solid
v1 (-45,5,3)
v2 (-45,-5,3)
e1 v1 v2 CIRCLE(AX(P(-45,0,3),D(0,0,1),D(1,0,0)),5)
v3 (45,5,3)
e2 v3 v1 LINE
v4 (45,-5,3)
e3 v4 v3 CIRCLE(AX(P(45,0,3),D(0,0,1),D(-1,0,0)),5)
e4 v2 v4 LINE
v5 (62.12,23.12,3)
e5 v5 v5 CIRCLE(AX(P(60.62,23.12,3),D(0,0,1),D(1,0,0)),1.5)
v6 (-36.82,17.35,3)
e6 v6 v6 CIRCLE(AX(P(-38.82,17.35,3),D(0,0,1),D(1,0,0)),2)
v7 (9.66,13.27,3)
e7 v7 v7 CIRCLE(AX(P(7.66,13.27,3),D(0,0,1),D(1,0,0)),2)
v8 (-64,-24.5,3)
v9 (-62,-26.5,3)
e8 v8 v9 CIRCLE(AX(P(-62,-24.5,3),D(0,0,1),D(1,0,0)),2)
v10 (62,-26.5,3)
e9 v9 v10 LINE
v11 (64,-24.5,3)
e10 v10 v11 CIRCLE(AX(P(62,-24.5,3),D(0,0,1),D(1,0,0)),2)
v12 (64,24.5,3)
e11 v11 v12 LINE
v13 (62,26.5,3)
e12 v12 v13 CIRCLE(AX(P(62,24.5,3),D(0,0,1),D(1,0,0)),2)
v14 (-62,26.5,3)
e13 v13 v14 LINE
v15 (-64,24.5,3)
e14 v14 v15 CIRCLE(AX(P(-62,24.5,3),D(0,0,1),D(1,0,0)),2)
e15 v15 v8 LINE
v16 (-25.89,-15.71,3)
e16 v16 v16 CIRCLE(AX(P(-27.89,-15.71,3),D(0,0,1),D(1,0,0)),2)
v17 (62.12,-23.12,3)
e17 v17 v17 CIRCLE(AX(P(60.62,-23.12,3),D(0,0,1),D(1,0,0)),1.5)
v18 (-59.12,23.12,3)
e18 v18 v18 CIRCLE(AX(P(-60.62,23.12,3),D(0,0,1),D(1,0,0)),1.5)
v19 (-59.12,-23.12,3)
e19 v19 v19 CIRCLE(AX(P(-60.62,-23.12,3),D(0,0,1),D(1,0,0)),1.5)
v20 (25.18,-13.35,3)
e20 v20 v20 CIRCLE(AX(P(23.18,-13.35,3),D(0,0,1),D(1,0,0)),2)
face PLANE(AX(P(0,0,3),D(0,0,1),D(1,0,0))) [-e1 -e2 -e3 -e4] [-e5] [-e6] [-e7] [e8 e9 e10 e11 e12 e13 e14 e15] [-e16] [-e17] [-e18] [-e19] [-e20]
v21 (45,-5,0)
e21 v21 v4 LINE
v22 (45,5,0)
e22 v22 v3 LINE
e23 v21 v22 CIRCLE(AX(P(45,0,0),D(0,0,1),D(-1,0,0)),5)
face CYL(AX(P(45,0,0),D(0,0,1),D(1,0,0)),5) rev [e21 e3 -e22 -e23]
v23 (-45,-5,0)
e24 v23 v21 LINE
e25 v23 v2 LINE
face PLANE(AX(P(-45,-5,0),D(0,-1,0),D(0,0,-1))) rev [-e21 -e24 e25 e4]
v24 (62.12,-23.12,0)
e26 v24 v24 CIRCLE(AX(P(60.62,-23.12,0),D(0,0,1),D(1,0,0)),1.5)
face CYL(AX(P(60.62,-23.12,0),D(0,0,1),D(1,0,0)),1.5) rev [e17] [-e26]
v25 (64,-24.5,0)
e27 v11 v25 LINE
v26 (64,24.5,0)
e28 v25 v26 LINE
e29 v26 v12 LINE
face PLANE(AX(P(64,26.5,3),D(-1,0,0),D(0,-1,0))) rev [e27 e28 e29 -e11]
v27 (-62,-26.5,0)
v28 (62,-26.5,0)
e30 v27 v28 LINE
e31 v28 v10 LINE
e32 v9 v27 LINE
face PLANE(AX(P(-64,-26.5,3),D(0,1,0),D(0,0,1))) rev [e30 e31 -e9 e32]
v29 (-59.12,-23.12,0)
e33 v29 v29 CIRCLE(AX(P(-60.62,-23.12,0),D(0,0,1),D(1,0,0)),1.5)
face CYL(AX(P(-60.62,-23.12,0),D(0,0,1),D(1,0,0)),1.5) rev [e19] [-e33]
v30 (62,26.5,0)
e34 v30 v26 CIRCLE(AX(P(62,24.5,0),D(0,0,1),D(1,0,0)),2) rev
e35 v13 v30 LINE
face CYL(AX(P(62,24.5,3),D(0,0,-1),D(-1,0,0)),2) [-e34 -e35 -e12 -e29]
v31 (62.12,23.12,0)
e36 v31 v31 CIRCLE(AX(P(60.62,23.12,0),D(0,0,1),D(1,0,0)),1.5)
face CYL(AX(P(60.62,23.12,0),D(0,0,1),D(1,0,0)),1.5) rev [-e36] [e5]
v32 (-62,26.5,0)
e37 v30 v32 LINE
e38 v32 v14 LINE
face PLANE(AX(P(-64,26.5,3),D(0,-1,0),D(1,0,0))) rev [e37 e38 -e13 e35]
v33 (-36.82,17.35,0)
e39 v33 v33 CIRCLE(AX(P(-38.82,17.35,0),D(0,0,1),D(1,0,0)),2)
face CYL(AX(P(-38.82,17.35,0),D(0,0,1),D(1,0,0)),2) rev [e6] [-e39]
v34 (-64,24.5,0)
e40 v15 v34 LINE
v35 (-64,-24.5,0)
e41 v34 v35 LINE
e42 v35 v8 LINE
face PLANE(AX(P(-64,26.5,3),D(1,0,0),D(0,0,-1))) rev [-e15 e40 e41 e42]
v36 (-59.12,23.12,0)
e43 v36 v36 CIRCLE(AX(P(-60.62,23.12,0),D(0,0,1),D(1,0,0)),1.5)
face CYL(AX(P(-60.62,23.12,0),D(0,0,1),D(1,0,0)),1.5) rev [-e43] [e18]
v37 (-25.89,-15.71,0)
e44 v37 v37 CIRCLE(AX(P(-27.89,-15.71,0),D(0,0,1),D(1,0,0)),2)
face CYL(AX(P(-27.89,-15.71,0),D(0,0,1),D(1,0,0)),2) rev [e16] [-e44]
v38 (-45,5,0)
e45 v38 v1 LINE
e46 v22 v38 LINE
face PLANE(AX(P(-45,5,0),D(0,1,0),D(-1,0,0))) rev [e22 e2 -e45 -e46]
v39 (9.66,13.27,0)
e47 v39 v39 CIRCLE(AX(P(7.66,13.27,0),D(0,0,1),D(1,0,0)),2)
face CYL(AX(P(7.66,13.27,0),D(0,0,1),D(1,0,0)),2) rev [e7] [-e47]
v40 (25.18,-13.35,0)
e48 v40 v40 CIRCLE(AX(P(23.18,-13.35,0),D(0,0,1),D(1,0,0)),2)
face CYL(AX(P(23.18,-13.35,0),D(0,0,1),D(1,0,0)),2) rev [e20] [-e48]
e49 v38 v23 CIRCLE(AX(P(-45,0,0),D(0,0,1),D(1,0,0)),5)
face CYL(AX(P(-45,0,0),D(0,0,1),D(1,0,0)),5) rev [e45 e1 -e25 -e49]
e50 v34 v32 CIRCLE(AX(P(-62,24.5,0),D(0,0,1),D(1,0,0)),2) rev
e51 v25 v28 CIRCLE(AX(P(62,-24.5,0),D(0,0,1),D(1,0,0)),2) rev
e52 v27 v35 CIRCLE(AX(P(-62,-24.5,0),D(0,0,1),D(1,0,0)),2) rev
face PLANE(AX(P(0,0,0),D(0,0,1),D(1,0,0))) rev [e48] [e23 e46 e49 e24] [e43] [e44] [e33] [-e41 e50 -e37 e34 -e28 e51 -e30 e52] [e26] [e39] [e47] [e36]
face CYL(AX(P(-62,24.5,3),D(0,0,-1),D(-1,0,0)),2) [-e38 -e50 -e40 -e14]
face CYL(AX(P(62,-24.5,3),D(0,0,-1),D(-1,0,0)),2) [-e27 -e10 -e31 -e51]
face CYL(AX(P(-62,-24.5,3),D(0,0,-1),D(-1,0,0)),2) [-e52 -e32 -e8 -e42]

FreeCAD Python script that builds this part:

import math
import FreeCAD as App
import Part
import Sketcher

V = App.Vector


def edges_at(feature, points):
    """Names of the edges that pass closest to the given points."""
    edges = feature.Shape.Edges
    near = lambda p: min(range(len(edges)), key=lambda i: edges[i].distToShape(Part.Vertex(*p))[0])
    return sorted({f"Edge{near(p) + 1}" for p in points})


def add_polygon(sketch, points):
    """Adds a closed chain of lines whose ends are joined by coincident constraints."""
    first, n = sketch.GeometryCount, len(points)
    for a, b in zip(points, points[1:] + points[:1]):
        sketch.addGeometry(Part.LineSegment(App.Vector(*a, 0), App.Vector(*b, 0)), False)
    for i in range(n):
        sketch.addConstraint(Sketcher.Constraint("Coincident", first + i, 2, first + (i + 1) % n, 1))

doc = App.newDocument("Part")
params = doc.addObject("Spreadsheet::Sheet", "Params")
for row, (alias, value) in enumerate([
    ("sketch1_width", "128 mm"),
    ("sketch1_height", "53 mm"),
    ("pad1_length", "3 mm"),
    ("sketch2_diameter", "4 mm"),
    ("pocket1_length", "3 mm"),
    ("sketch3_radius", "5 mm"),
    ("sketch3_width", "90.000001 mm"),
    ("pocket2_length", "3 mm"),
    ("sketch4_diameter", "3 mm"),
    ("pocket3_length", "3 mm"),
    ("fillet_radius", "2 mm"),
], start=1):
    params.set(f"A{row}", alias)
    params.set(f"B{row}", "=" + value)
    params.setAlias(f"B{row}", alias)

body = doc.addObject("PartDesign::Body", "Body")

# Sketch on XY plane
sketch1 = body.newObject("Sketcher::SketchObject", "Sketch")
sketch1.AttachmentSupport = (doc.getObject("XY_Plane"), [""])
sketch1.MapMode = "FlatFace"
add_polygon(sketch1, [(-64, 26), (-64, -26), (64, -26), (64, 26)])  # lines 0-3
sketch1.addConstraint(Sketcher.Constraint("Vertical", 0))
sketch1.addConstraint(Sketcher.Constraint("Horizontal", 1))
sketch1.addConstraint(Sketcher.Constraint("Vertical", 2))
sketch1.addConstraint(Sketcher.Constraint("Horizontal", 3))
sketch1.addConstraint(Sketcher.Constraint("Symmetric", 0, 2, 2, 2, -1, 1))
sketch1.addConstraint(Sketcher.Constraint("DistanceX", 1, 1, 1, 2, 128.0))
sketch1.addConstraint(Sketcher.Constraint("DistanceY", 0, 2, 0, 1, 53.0))
sketch1.setExpression("Constraints[9]", "Params.sketch1_width")
sketch1.setExpression("Constraints[10]", "Params.sketch1_height")
pad1 = body.newObject("PartDesign::Pad", "Pad")
pad1.Profile = sketch1
pad1.setExpression("Length", "Params.pad1_length")

# Sketch on XY plane
sketch2 = body.newObject("Sketcher::SketchObject", "Sketch001")
sketch2.AttachmentSupport = (doc.getObject("XY_Plane"), [""])
sketch2.MapMode = "FlatFace"
sketch2.AttachmentOffset = App.Placement(V(0, 0, 3), App.Rotation())
sketch2.addGeometry(Part.Circle(V(-38.8, 17.4, 0), V(0, 0, 1), 2), False)
sketch2.addGeometry(Part.Circle(V(7.7, 13.3, 0), V(0, 0, 1), 2), False)
sketch2.addGeometry(Part.Circle(V(-27.9, -15.7, 0), V(0, 0, 1), 2), False)
sketch2.addGeometry(Part.Circle(V(23.2, -13.3, 0), V(0, 0, 1), 2), False)
sketch2.addConstraint(Sketcher.Constraint("Equal", 0, 1))
sketch2.addConstraint(Sketcher.Constraint("Equal", 1, 2))
sketch2.addConstraint(Sketcher.Constraint("Equal", 2, 3))
sketch2.addConstraint(Sketcher.Constraint("Diameter", 0, 4.0))
sketch2.addConstraint(Sketcher.Constraint("DistanceX", 0, 3, 3, 3, 62.0))
sketch2.addConstraint(Sketcher.Constraint("DistanceY", 3, 3, 0, 3, 30.7))
sketch2.addConstraint(Sketcher.Constraint("DistanceX", 0, 3, -1, 1, 38.82))
sketch2.addConstraint(Sketcher.Constraint("DistanceY", -1, 1, 0, 3, 17.35))
sketch2.addConstraint(Sketcher.Constraint("DistanceX", -1, 1, 1, 3, 7.66))
sketch2.addConstraint(Sketcher.Constraint("DistanceY", -1, 1, 1, 3, 13.27))
sketch2.addConstraint(Sketcher.Constraint("DistanceX", 2, 3, -1, 1, 27.89))
sketch2.addConstraint(Sketcher.Constraint("DistanceY", 2, 3, -1, 1, 15.71))
sketch2.setExpression("Constraints[3]", "Params.sketch2_diameter")
pocket1 = body.newObject("PartDesign::Pocket", "Pocket")
pocket1.Profile = sketch2
pocket1.setExpression("Length", "Params.pocket1_length")

# Sketch on XY plane
sketch3 = body.newObject("Sketcher::SketchObject", "Sketch002")
sketch3.AttachmentSupport = (doc.getObject("XY_Plane"), [""])
sketch3.MapMode = "FlatFace"
sketch3.AttachmentOffset = App.Placement(V(0, 0, 3), App.Rotation())
sketch3.addGeometry(Part.LineSegment(V(45, 5, 0), V(-45, 5, 0)), False)
sketch3.addGeometry(Part.ArcOfCircle(Part.Circle(V(-45, 0, 0), V(0, 0, 1), 5), math.radians(90), math.radians(270)), False)
sketch3.addGeometry(Part.LineSegment(V(-45, -5, 0), V(45, -5, 0)), False)
sketch3.addGeometry(Part.ArcOfCircle(Part.Circle(V(45, 0, 0), V(0, 0, 1), 5), math.radians(-90), math.radians(90)), False)
sketch3.addConstraint(Sketcher.Constraint("Tangent", 0, 2, 1, 1))
sketch3.addConstraint(Sketcher.Constraint("Tangent", 1, 2, 2, 1))
sketch3.addConstraint(Sketcher.Constraint("Tangent", 2, 2, 3, 1))
sketch3.addConstraint(Sketcher.Constraint("Tangent", 3, 2, 0, 1))
sketch3.addConstraint(Sketcher.Constraint("Horizontal", 0))
sketch3.addConstraint(Sketcher.Constraint("Horizontal", 2))
sketch3.addConstraint(Sketcher.Constraint("Symmetric", 1, 3, 3, 3, -1, 1))
sketch3.addConstraint(Sketcher.Constraint("Radius", 1, 5.0))
sketch3.addConstraint(Sketcher.Constraint("DistanceX", 0, 2, 0, 1, 90.000001))
sketch3.setExpression("Constraints[7]", "Params.sketch3_radius")
sketch3.setExpression("Constraints[8]", "Params.sketch3_width")
pocket2 = body.newObject("PartDesign::Pocket", "Pocket001")
pocket2.Profile = sketch3
pocket2.setExpression("Length", "Params.pocket2_length")

# Sketch on XY plane
sketch4 = body.newObject("Sketcher::SketchObject", "Sketch003")
sketch4.AttachmentSupport = (doc.getObject("XY_Plane"), [""])
sketch4.MapMode = "FlatFace"
sketch4.AttachmentOffset = App.Placement(V(0, 0, 3), App.Rotation())
sketch4.addGeometry(Part.Circle(V(-60.6, 23.1, 0), V(0, 0, 1), 1.5), False)
sketch4.addGeometry(Part.Circle(V(60.6, 23.1, 0), V(0, 0, 1), 1.5), False)
sketch4.addGeometry(Part.Circle(V(-60.6, -23.1, 0), V(0, 0, 1), 1.5), False)
sketch4.addGeometry(Part.Circle(V(60.6, -23.1, 0), V(0, 0, 1), 1.5), False)
sketch4.addConstraint(Sketcher.Constraint("Equal", 0, 1))
sketch4.addConstraint(Sketcher.Constraint("Equal", 1, 2))
sketch4.addConstraint(Sketcher.Constraint("Equal", 2, 3))
sketch4.addConstraint(Sketcher.Constraint("Symmetric", 1, 3, 2, 3, -1, 1))
sketch4.addConstraint(Sketcher.Constraint("Symmetric", 0, 3, 3, 3, -1, 1))
sketch4.addConstraint(Sketcher.Constraint("Symmetric", 0, 3, 1, 3, -2))
sketch4.addConstraint(Sketcher.Constraint("Diameter", 0, 3.0))
sketch4.addConstraint(Sketcher.Constraint("DistanceX", 0, 3, -1, 1, 60.62))
sketch4.addConstraint(Sketcher.Constraint("DistanceY", -1, 1, 0, 3, 23.12))
sketch4.setExpression("Constraints[6]", "Params.sketch4_diameter")
pocket3 = body.newObject("PartDesign::Pocket", "Pocket002")
pocket3.Profile = sketch4
pocket3.setExpression("Length", "Params.pocket3_length")
doc.recompute()

fillet = body.newObject("PartDesign::Fillet", "Fillet")
fillet.Base = (pocket3, edges_at(pocket3, [
    (-64, 26.5, 1.5),
    (64, 26.5, 1.5),
    (64, -26.5, 1.5),
    (-64, -26.5, 1.5),
]))
fillet.setExpression("Radius", "Params.fillet_radius")

doc.recompute()
